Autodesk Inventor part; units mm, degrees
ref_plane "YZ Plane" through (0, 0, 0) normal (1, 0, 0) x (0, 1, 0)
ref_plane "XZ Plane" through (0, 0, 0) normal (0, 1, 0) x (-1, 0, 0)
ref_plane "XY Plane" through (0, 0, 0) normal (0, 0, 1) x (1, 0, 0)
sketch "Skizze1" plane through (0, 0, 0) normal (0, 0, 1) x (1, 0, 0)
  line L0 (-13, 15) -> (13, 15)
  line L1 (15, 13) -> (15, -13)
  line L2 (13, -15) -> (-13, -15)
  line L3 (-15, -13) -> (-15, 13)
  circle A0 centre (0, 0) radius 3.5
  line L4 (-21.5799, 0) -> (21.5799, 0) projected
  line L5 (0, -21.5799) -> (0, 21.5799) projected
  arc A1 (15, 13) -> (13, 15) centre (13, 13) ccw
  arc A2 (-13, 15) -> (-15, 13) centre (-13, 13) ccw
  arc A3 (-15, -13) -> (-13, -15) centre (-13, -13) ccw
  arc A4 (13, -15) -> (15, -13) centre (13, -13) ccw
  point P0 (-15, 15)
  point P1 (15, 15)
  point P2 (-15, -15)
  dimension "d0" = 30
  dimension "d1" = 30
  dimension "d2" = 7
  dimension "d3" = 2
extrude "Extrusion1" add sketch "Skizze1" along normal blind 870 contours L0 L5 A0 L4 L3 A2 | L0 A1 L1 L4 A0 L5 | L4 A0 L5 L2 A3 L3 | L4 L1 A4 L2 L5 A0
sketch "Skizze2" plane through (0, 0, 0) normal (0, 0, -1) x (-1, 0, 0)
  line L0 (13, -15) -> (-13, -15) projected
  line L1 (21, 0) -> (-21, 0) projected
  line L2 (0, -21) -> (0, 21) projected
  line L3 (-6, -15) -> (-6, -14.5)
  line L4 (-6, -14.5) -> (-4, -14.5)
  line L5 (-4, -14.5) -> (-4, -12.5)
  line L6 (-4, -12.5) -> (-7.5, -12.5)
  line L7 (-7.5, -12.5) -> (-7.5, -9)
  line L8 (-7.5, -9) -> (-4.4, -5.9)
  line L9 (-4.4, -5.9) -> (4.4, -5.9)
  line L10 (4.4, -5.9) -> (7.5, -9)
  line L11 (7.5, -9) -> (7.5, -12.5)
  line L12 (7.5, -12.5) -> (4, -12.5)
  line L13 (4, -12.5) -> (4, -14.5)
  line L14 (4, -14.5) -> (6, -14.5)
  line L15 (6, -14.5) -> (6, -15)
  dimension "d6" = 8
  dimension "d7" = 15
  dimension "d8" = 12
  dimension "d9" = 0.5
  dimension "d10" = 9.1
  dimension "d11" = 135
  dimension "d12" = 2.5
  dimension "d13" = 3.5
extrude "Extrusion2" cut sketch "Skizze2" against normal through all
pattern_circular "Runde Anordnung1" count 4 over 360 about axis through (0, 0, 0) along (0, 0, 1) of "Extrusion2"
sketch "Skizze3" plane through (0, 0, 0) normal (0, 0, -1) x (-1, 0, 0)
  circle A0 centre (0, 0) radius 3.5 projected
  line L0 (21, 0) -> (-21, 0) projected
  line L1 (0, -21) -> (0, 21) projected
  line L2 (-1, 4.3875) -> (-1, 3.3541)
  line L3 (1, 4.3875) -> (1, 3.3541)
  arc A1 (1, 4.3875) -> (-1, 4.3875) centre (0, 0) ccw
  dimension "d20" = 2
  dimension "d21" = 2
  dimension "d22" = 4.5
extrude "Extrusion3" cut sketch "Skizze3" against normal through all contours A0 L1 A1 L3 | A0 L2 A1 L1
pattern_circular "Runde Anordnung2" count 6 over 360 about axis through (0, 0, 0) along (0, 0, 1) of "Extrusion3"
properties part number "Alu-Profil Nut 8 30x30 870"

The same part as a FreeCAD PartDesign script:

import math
import FreeCAD as App
import Part
import Sketcher

V = App.Vector


def add_polygon(sketch, points):
    """Adds a closed chain of lines whose ends are joined by coincident constraints."""
    first, n = sketch.GeometryCount, len(points)
    for a, b in zip(points, points[1:] + points[:1]):
        sketch.addGeometry(Part.LineSegment(App.Vector(*a, 0), App.Vector(*b, 0)), False)
    for i in range(n):
        sketch.addConstraint(Sketcher.Constraint("Coincident", first + i, 2, first + (i + 1) % n, 1))

doc = App.newDocument("Part")
params = doc.addObject("Spreadsheet::Sheet", "Params")
for row, (alias, value) in enumerate([
    ("sketch1_diameter", "7 mm"),
    ("sketch1_radius", "2 mm"),
    ("sketch1_width", "26 mm"),
    ("pad1_length", "870 mm"),
    ("sketch2_width", "12 mm"),
    ("sketch2_width2", "3.5 mm"),
    ("sketch2_height", "0.5 mm"),
    ("sketch2_width3", "8.8 mm"),
    ("sketch3_radius", "4.5 mm"),
    ("sketch3_radius2", "3.5 mm"),
], start=1):
    params.set(f"A{row}", alias)
    params.set(f"B{row}", "=" + value)
    params.setAlias(f"B{row}", alias)

body = doc.addObject("PartDesign::Body", "Body")

sketch1 = body.newObject("Sketcher::SketchObject", "Sketch")
sketch1.AttachmentSupport = (doc.getObject("XY_Plane"), [""])
sketch1.MapMode = "FlatFace"
sketch1.addGeometry([
    Part.ArcOfCircle(Part.Circle(V(-13, 13, 0), V(0, 0, 1), 2), math.radians(90), math.radians(180)),
    Part.LineSegment(V(-15, 13, 0), V(-15, -13, 0)),
    Part.ArcOfCircle(Part.Circle(V(-13, -13, 0), V(0, 0, 1), 2), math.radians(180), math.radians(270)),
    Part.LineSegment(V(-13, -15, 0), V(13, -15, 0)),
    Part.ArcOfCircle(Part.Circle(V(13, -13, 0), V(0, 0, 1), 2), math.radians(-90), math.radians(0)),
    Part.LineSegment(V(15, -13, 0), V(15, 13, 0)),
    Part.ArcOfCircle(Part.Circle(V(13, 13, 0), V(0, 0, 1), 2), math.radians(0), math.radians(90)),
    Part.LineSegment(V(13, 15, 0), V(-13, 15, 0)),
    Part.Circle(V(0, 0, 0), V(0, 0, 1), 3.5),
], False)
sketch1.addConstraint([
    Sketcher.Constraint("Tangent", 0, 2, 1, 1),
    Sketcher.Constraint("Tangent", 1, 2, 2, 1),
    Sketcher.Constraint("Tangent", 2, 2, 3, 1),
    Sketcher.Constraint("Tangent", 3, 2, 4, 1),
    Sketcher.Constraint("Tangent", 4, 2, 5, 1),
    Sketcher.Constraint("Tangent", 5, 2, 6, 1),
    Sketcher.Constraint("Tangent", 6, 2, 7, 1),
    Sketcher.Constraint("Tangent", 7, 2, 0, 1),
    Sketcher.Constraint("Vertical", 1),
    Sketcher.Constraint("Horizontal", 3),
    Sketcher.Constraint("Vertical", 5),
    Sketcher.Constraint("Horizontal", 7),
    Sketcher.Constraint("Coincident", 8, 3, -1, 1),
    Sketcher.Constraint("Equal", 0, 2),
    Sketcher.Constraint("Equal", 2, 4),
    Sketcher.Constraint("Equal", 4, 6),
    Sketcher.Constraint("Symmetric", 0, 3, 4, 3, -1, 1),
    Sketcher.Constraint("Equal", 7, 1),
    Sketcher.Constraint("Diameter", 8, 7.0),
    Sketcher.Constraint("Radius", 0, 2.0),
    Sketcher.Constraint("DistanceX", 3, 1, 3, 2, 26.0),
])
sketch1.setExpression("Constraints[18]", "Params.sketch1_diameter")
sketch1.setExpression("Constraints[19]", "Params.sketch1_radius")
sketch1.setExpression("Constraints[20]", "Params.sketch1_width")
pad1 = body.newObject("PartDesign::Pad", "Pad")
pad1.Profile = sketch1
pad1.setExpression("Length", "Params.pad1_length")

sketch2 = body.newObject("Sketcher::SketchObject", "Sketch001")
sketch2.AttachmentSupport = (doc.getObject("XY_Plane"), [""])
sketch2.MapMode = "FlatFace"
add_polygon(sketch2, [(-6, -15), (-6, -14.5), (-4, -14.5), (-4, -12.5), (-7.5, -12.5), (-7.5, -9), (-4.4, -5.9), (4.4, -5.9), (7.5, -9), (7.5, -12.5), (4, -12.5), (4, -14.5), (6, -14.5), (6, -15)])
sketch2.addConstraint([
    Sketcher.Constraint("Vertical", 0),
    Sketcher.Constraint("Horizontal", 1),
    Sketcher.Constraint("Vertical", 2),
    Sketcher.Constraint("Horizontal", 3),
    Sketcher.Constraint("Vertical", 4),
    Sketcher.Constraint("Horizontal", 6),
    Sketcher.Constraint("Vertical", 8),
    Sketcher.Constraint("Horizontal", 9),
    Sketcher.Constraint("Vertical", 10),
    Sketcher.Constraint("Horizontal", 11),
    Sketcher.Constraint("Vertical", 12),
    Sketcher.Constraint("Horizontal", 13),
    Sketcher.Constraint("Symmetric", 4, 2, 7, 2, -2),
    Sketcher.Constraint("Symmetric", 2, 2, 9, 2, -2),
    Sketcher.Constraint("Symmetric", 0, 2, 11, 2, -2),
    Sketcher.Constraint("Perpendicular", 5, 7),
    Sketcher.Constraint("Equal", 11, 2),
    Sketcher.Constraint("Equal", 9, 4),
    Sketcher.Constraint("Equal", 5, 7),
    Sketcher.Constraint("DistanceX", 13, 2, 13, 1, 12.0),
    Sketcher.Constraint("DistanceX", 3, 2, 3, 1, 3.5),
    Sketcher.Constraint("DistanceY", 0, 1, 0, 2, 0.5),
    Sketcher.Constraint("DistanceY", 12, 2, -1, 1, 15.0),
    Sketcher.Constraint("DistanceX", 2, 2, 9, 2, 8.0),
    Sketcher.Constraint("DistanceX", 6, 1, 6, 2, 8.8),
])
sketch2.setExpression("Constraints[33]", "Params.sketch2_width")
sketch2.setExpression("Constraints[34]", "Params.sketch2_width2")
sketch2.setExpression("Constraints[35]", "Params.sketch2_height")
sketch2.setExpression("Constraints[38]", "Params.sketch2_width3")
pocket1 = body.newObject("PartDesign::Pocket", "Pocket")
pocket1.Profile = sketch2
pocket1.Type = "ThroughAll"
pocket1.Reversed = True
doc.recompute()

polarpattern = body.newObject("PartDesign::PolarPattern", "PolarPattern")
polarpattern.Originals = [pocket1]
polarpattern.Axis = (doc.getObject("Z_Axis"), [""])
polarpattern.Angle = 360
polarpattern.Occurrences = 4
body.Tip = polarpattern

sketch3 = body.newObject("Sketcher::SketchObject", "Sketch002")
sketch3.AttachmentSupport = (doc.getObject("XY_Plane"), [""])
sketch3.MapMode = "FlatFace"
sketch3.addGeometry([
    Part.LineSegment(V(-1, 3.4, 0), V(-1, 4.4, 0)),
    Part.ArcOfCircle(Part.Circle(V(0, 0, 0), V(0, 0, 1), 4.5), math.radians(77), math.radians(103)),
    Part.LineSegment(V(1, 4.4, 0), V(1, 3.4, 0)),
    Part.ArcOfCircle(Part.Circle(V(0, 0, 0), V(0, 0, 1), 3.5), math.radians(73), math.radians(107)),
], False)
sketch3.addConstraint([
    Sketcher.Constraint("Coincident", 0, 2, 1, 2),
    Sketcher.Constraint("Coincident", 1, 1, 2, 1),
    Sketcher.Constraint("Coincident", 2, 2, 3, 1),
    Sketcher.Constraint("Coincident", 3, 2, 0, 1),
    Sketcher.Constraint("Vertical", 0),
    Sketcher.Constraint("Vertical", 2),
    Sketcher.Constraint("Coincident", 1, 3, -1, 1),
    Sketcher.Constraint("Coincident", 3, 3, -1, 1),
    Sketcher.Constraint("Horizontal", 0, 2, 1, 1),
    Sketcher.Constraint("Radius", 1, 4.5),
    Sketcher.Constraint("DistanceX", 0, 2, 1, 1, 2.0),
    Sketcher.Constraint("Radius", 3, 3.5),
])
sketch3.setExpression("Constraints[9]", "Params.sketch3_radius")
sketch3.setExpression("Constraints[11]", "Params.sketch3_radius2")
pocket2 = body.newObject("PartDesign::Pocket", "Pocket001")
pocket2.Profile = sketch3
pocket2.Type = "ThroughAll"
pocket2.Reversed = True
doc.recompute()

polarpattern2 = body.newObject("PartDesign::PolarPattern", "PolarPattern001")
polarpattern2.Originals = [pocket2]
polarpattern2.Axis = (doc.getObject("Z_Axis"), [""])
polarpattern2.Angle = 360
polarpattern2.Occurrences = 6
body.Tip = polarpattern2

doc.recompute()
